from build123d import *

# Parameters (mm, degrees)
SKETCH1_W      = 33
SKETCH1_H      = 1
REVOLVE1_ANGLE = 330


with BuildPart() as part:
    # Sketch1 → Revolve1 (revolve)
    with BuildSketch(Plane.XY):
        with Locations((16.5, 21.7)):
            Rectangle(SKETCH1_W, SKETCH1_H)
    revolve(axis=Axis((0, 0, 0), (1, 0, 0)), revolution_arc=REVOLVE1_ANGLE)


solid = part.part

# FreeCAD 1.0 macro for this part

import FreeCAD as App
import Part
import Sketcher

V = App.Vector
Q = App.Units.Quantity

doc = App.newDocument("Part")
body = doc.addObject("PartDesign::Body", "Body")

# Sketch on XY plane
sketch1 = doc.addObject("Sketcher::SketchObject", "Sketch")
body.addObject(sketch1)
sketch1.AttachmentSupport = (doc.XY_Plane, [""])
sketch1.MapMode = "FlatFace"
sketch1.addGeometry(Part.LineSegment(V(0, 22.2, 0), V(0, 21.2, 0)), False)
sketch1.addGeometry(Part.LineSegment(V(0, 21.2, 0), V(33, 21.2, 0)), False)
sketch1.addGeometry(Part.LineSegment(V(33, 21.2, 0), V(33, 22.2, 0)), False)
sketch1.addGeometry(Part.LineSegment(V(33, 22.2, 0), V(0, 22.2, 0)), False)
sketch1.addConstraint(Sketcher.Constraint("Coincident", 0, 2, 1, 1))
sketch1.addConstraint(Sketcher.Constraint("Coincident", 1, 2, 2, 1))
sketch1.addConstraint(Sketcher.Constraint("Coincident", 2, 2, 3, 1))
sketch1.addConstraint(Sketcher.Constraint("Coincident", 3, 2, 0, 1))
sketch1.addConstraint(Sketcher.Constraint("Vertical", 0))
sketch1.addConstraint(Sketcher.Constraint("Horizontal", 1))
sketch1.addConstraint(Sketcher.Constraint("Vertical", 2))
sketch1.addConstraint(Sketcher.Constraint("Horizontal", 3))
sketch1.addConstraint(Sketcher.Constraint("PointOnObject", 0, 2, -2))
sketch1.addConstraint(Sketcher.Constraint("DistanceX", 1, 1, 1, 2, Q("33 mm")))
sketch1.addConstraint(Sketcher.Constraint("DistanceY", 0, 2, 0, 1, Q("1 mm")))
sketch1.addConstraint(Sketcher.Constraint("DistanceY", -1, 1, 0, 2, Q("21.2 mm")))
revolution = doc.addObject("PartDesign::Revolution", "Revolution")
body.addObject(revolution)
revolution.Profile = sketch1
revolution.ReferenceAxis = (sketch1, ["H_Axis"])
revolution.Angle = 330

doc.recompute()
